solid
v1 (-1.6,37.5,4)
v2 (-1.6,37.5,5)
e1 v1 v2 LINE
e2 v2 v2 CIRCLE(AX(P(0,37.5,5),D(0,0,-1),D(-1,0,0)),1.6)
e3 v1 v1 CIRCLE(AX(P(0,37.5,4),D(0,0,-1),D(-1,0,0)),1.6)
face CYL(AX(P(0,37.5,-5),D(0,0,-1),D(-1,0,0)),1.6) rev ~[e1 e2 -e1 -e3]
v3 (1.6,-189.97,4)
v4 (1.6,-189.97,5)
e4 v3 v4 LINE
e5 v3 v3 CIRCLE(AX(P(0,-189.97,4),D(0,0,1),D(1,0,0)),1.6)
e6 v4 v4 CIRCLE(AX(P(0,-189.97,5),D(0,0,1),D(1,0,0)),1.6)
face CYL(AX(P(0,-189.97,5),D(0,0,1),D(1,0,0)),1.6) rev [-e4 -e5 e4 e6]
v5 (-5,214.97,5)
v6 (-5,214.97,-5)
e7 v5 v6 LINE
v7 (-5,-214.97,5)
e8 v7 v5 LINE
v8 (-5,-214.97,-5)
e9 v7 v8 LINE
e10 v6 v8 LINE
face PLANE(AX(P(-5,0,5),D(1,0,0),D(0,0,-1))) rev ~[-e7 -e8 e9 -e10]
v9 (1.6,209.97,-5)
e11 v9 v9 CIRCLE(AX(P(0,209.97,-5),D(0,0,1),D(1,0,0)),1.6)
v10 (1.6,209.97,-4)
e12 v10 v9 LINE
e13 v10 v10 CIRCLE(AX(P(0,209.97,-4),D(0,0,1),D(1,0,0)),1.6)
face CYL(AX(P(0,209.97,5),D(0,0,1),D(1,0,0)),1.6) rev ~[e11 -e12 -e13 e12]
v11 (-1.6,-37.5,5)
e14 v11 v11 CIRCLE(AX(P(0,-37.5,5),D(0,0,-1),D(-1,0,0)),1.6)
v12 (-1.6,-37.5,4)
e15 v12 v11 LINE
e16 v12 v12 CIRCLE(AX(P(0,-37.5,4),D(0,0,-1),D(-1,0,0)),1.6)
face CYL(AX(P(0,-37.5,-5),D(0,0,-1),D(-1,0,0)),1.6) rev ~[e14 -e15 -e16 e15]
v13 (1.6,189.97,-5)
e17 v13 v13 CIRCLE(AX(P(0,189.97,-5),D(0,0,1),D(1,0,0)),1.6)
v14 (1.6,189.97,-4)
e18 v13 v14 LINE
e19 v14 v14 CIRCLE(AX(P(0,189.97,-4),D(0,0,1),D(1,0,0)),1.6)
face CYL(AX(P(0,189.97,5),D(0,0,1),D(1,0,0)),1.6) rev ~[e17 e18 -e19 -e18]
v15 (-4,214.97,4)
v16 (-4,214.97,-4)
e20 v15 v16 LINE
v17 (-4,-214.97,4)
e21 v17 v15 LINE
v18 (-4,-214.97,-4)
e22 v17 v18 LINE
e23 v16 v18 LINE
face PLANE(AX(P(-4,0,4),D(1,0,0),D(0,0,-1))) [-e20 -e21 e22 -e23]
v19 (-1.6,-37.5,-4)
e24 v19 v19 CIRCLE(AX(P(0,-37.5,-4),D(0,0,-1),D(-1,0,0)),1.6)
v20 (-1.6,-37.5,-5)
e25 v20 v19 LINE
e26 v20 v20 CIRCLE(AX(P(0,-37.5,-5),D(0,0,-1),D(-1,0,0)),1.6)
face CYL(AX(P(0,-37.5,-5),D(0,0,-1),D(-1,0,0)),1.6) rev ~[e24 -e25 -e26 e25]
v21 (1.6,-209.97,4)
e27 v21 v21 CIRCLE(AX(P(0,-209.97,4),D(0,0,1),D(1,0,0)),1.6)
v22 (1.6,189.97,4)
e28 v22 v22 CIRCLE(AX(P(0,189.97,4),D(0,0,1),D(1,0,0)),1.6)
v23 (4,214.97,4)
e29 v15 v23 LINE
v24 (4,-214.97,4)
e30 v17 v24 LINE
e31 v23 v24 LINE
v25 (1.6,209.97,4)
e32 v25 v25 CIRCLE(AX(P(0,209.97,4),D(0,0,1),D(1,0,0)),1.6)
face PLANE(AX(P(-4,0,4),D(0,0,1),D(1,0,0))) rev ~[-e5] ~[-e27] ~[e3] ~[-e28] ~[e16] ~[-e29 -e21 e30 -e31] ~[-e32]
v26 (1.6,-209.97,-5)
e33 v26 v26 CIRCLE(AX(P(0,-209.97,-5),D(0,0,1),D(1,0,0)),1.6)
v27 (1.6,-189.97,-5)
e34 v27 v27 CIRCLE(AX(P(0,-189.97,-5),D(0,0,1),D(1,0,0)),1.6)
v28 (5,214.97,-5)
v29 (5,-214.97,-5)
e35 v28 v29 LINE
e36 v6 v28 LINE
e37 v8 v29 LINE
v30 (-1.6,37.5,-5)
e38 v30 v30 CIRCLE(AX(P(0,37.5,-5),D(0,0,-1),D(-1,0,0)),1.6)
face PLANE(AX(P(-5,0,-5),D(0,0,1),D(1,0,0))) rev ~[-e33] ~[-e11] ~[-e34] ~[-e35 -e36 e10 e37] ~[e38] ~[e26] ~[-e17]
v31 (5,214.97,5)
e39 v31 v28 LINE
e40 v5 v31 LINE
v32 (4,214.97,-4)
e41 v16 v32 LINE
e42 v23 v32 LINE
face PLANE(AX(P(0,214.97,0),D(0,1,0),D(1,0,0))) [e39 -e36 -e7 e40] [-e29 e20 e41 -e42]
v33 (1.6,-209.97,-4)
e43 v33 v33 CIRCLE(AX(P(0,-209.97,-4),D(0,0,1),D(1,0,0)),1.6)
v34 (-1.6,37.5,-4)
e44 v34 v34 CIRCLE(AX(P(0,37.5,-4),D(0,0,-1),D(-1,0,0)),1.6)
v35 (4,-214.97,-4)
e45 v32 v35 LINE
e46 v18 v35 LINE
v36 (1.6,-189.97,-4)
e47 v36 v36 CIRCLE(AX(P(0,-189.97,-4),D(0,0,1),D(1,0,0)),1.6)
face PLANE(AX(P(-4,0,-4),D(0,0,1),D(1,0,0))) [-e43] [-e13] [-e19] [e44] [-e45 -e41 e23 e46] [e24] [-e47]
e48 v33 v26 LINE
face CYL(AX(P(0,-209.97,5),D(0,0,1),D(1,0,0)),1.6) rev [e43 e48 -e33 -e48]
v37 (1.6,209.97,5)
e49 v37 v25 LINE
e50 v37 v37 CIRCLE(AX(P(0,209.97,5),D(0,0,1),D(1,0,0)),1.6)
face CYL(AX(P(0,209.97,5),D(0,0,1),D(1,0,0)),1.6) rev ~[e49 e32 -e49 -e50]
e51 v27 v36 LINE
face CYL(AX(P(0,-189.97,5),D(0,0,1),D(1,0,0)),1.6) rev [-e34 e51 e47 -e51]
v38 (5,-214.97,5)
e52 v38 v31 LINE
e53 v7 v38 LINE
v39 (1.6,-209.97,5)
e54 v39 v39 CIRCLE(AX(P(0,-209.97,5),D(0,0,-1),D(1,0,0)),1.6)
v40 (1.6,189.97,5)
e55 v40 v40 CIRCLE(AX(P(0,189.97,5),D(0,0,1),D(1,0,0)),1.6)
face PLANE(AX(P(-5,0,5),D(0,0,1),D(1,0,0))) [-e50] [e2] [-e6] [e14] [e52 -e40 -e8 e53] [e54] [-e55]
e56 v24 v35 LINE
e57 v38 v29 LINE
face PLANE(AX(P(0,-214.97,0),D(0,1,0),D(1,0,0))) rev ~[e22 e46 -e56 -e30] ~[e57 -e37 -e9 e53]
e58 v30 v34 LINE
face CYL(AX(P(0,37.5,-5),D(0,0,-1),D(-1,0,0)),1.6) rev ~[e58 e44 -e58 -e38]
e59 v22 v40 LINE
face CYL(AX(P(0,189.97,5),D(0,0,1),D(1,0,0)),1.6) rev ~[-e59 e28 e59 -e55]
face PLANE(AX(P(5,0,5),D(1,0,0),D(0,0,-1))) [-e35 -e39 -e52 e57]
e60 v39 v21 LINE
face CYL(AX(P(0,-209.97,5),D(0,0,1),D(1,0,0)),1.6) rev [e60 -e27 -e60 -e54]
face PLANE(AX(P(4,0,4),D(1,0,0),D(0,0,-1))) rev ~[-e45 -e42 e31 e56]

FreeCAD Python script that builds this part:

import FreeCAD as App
import Part
import Sketcher

V = App.Vector
Q = App.Units.Quantity


def add_polygon(sketch, points):
    """Adds a closed chain of lines whose ends are joined by coincident constraints."""
    first, n = sketch.GeometryCount, len(points)
    for a, b in zip(points, points[1:] + points[:1]):
        sketch.addGeometry(Part.LineSegment(App.Vector(*a, 0), App.Vector(*b, 0)), False)
    for i in range(n):
        sketch.addConstraint(Sketcher.Constraint("Coincident", first + i, 2, first + (i + 1) % n, 1))

doc = App.newDocument("Part")
body = doc.addObject("PartDesign::Body", "Body")

# Sketch on XZ plane
sketch1 = doc.addObject("Sketcher::SketchObject", "Sketch")
body.addObject(sketch1)
sketch1.AttachmentSupport = (doc.XZ_Plane, [""])
sketch1.MapMode = "FlatFace"
add_polygon(sketch1, [(-5, -5), (-5, 5), (5, 5), (5, -5)])  # lines 0-3
add_polygon(sketch1, [(4, 4), (-4, 4), (-4, -4), (4, -4)])  # lines 4-7
sketch1.addConstraint([
    Sketcher.Constraint("Vertical", 0),
    Sketcher.Constraint("Horizontal", 1),
    Sketcher.Constraint("Vertical", 2),
    Sketcher.Constraint("Horizontal", 3),
    Sketcher.Constraint("Horizontal", 4),
    Sketcher.Constraint("Vertical", 5),
    Sketcher.Constraint("Horizontal", 6),
    Sketcher.Constraint("Vertical", 7),
    Sketcher.Constraint("Symmetric", 0, 2, 2, 2, -1, 1),
    Sketcher.Constraint("Symmetric", 4, 2, 6, 2, -1, 1),
    Sketcher.Constraint("Equal", 3, 0),
    Sketcher.Constraint("Equal", 6, 5),
    Sketcher.Constraint("DistanceX", 1, 1, 1, 2, Q("10 mm")),
    Sketcher.Constraint("DistanceX", 4, 2, 4, 1, Q("8 mm")),
])
pad1 = doc.addObject("PartDesign::Pad", "Pad")
body.addObject(pad1)
pad1.Profile = sketch1
pad1.Length = 429.94
pad1.Midplane = True

# Sketch on XY plane
sketch2 = doc.addObject("Sketcher::SketchObject", "Sketch001")
body.addObject(sketch2)
sketch2.AttachmentSupport = (doc.XY_Plane, [""])
sketch2.MapMode = "FlatFace"
sketch2.AttachmentOffset = App.Placement(V(0, 0, 5), App.Rotation())
sketch2.addGeometry([
    Part.Circle(V(0, 210, 0), V(0, 0, 1), 1.6),
    Part.Circle(V(0, 190, 0), V(0, 0, 1), 1.6),
], False)
sketch2.addConstraint([
    Sketcher.Constraint("Equal", 0, 1),
    Sketcher.Constraint("PointOnObject", 0, 3, -2),
    Sketcher.Constraint("PointOnObject", 1, 3, -2),
    Sketcher.Constraint("Diameter", 0, Q("3.2 mm")),
    Sketcher.Constraint("DistanceY", 1, 3, 0, 3, Q("20 mm")),
    Sketcher.Constraint("DistanceY", -1, 1, 0, 3, Q("209.97 mm")),
])
pocket1 = doc.addObject("PartDesign::Pocket", "Pocket")
body.addObject(pocket1)
pocket1.Profile = sketch2
pocket1.Length = 427.43
pocket1.Midplane = True
doc.recompute()

mirrored = doc.addObject("PartDesign::Mirrored", "Mirrored")
body.addObject(mirrored)
mirrored.Originals = [pocket1]
mirrored.MirrorPlane = (doc.XZ_Plane, [""])
body.Tip = mirrored

# Sketch on XY plane
sketch3 = doc.addObject("Sketcher::SketchObject", "Sketch002")
body.addObject(sketch3)
sketch3.AttachmentSupport = (doc.XY_Plane, [""])
sketch3.MapMode = "FlatFace"
sketch3.AttachmentOffset = App.Placement(V(0, 0, -5), App.Rotation())
sketch3.addGeometry([
    Part.Circle(V(0, 37.5, 0), V(0, 0, 1), 1.6),
    Part.Circle(V(0, -37.5, 0), V(0, 0, 1), 1.6),
], False)
sketch3.addConstraint([
    Sketcher.Constraint("Equal", 0, 1),
    Sketcher.Constraint("Symmetric", 0, 3, 1, 3, -1, 1),
    Sketcher.Constraint("PointOnObject", 0, 3, -2),
    Sketcher.Constraint("Diameter", 0, Q("3.2 mm")),
    Sketcher.Constraint("DistanceY", 1, 3, 0, 3, Q("75 mm")),
])
pocket2 = doc.addObject("PartDesign::Pocket", "Pocket001")
body.addObject(pocket2)
pocket2.Profile = sketch3
pocket2.Length = 10
pocket2.Reversed = True

doc.recompute()
